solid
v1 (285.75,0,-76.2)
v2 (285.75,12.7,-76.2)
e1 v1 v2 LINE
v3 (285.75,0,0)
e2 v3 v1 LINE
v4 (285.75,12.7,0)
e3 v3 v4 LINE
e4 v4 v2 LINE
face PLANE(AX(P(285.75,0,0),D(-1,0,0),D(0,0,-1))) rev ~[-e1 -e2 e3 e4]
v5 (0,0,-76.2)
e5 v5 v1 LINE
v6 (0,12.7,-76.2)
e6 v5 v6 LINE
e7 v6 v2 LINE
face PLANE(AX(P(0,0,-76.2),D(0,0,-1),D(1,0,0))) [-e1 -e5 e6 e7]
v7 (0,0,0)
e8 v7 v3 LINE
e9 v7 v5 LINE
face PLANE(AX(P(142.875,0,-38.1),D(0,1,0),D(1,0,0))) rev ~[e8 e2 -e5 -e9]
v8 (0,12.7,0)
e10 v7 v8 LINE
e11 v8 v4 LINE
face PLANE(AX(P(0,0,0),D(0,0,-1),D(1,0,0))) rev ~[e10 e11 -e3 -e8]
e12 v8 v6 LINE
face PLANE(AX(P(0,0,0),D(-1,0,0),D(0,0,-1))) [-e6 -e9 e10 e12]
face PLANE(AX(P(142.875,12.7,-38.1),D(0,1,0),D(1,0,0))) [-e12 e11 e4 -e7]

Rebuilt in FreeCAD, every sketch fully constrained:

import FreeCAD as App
import Part
import Sketcher
Q = App.Units.Quantity

doc = App.newDocument("Part")
body = doc.addObject("PartDesign::Body", "Body")

sketch1 = doc.addObject("Sketcher::SketchObject", "Sketch")
body.addObject(sketch1)
sketch1.AttachmentSupport = (doc.XZ_Plane, [""])
sketch1.MapMode = "FlatFace"
sketch1.addGeometry([
    Part.LineSegment(App.Vector(0, -76.2, 0), App.Vector(0, 0, 0)),
    Part.LineSegment(App.Vector(0, 0, 0), App.Vector(285.75, 0, 0)),
    Part.LineSegment(App.Vector(285.75, 0, 0), App.Vector(285.75, -76.2, 0)),
    Part.LineSegment(App.Vector(285.75, -76.2, 0), App.Vector(0, -76.2, 0)),
], False)
sketch1.addConstraint([
    Sketcher.Constraint("Coincident", 0, 2, 1, 1),
    Sketcher.Constraint("Coincident", 1, 2, 2, 1),
    Sketcher.Constraint("Coincident", 2, 2, 3, 1),
    Sketcher.Constraint("Coincident", 3, 2, 0, 1),
    Sketcher.Constraint("Vertical", 0),
    Sketcher.Constraint("Horizontal", 1),
    Sketcher.Constraint("Vertical", 2),
    Sketcher.Constraint("Horizontal", 3),
    Sketcher.Constraint("Coincident", 0, 2, -1, 1),
    Sketcher.Constraint("DistanceY", 0, 1, 0, 2, Q("3 in")),
    Sketcher.Constraint("DistanceX", 1, 1, 1, 2, Q("11.25 in")),
])
pad1 = doc.addObject("PartDesign::Pad", "Pad")
body.addObject(pad1)
pad1.Profile = sketch1
pad1.Length = Q("0.5 in")
pad1.Reversed = True

doc.recompute()
